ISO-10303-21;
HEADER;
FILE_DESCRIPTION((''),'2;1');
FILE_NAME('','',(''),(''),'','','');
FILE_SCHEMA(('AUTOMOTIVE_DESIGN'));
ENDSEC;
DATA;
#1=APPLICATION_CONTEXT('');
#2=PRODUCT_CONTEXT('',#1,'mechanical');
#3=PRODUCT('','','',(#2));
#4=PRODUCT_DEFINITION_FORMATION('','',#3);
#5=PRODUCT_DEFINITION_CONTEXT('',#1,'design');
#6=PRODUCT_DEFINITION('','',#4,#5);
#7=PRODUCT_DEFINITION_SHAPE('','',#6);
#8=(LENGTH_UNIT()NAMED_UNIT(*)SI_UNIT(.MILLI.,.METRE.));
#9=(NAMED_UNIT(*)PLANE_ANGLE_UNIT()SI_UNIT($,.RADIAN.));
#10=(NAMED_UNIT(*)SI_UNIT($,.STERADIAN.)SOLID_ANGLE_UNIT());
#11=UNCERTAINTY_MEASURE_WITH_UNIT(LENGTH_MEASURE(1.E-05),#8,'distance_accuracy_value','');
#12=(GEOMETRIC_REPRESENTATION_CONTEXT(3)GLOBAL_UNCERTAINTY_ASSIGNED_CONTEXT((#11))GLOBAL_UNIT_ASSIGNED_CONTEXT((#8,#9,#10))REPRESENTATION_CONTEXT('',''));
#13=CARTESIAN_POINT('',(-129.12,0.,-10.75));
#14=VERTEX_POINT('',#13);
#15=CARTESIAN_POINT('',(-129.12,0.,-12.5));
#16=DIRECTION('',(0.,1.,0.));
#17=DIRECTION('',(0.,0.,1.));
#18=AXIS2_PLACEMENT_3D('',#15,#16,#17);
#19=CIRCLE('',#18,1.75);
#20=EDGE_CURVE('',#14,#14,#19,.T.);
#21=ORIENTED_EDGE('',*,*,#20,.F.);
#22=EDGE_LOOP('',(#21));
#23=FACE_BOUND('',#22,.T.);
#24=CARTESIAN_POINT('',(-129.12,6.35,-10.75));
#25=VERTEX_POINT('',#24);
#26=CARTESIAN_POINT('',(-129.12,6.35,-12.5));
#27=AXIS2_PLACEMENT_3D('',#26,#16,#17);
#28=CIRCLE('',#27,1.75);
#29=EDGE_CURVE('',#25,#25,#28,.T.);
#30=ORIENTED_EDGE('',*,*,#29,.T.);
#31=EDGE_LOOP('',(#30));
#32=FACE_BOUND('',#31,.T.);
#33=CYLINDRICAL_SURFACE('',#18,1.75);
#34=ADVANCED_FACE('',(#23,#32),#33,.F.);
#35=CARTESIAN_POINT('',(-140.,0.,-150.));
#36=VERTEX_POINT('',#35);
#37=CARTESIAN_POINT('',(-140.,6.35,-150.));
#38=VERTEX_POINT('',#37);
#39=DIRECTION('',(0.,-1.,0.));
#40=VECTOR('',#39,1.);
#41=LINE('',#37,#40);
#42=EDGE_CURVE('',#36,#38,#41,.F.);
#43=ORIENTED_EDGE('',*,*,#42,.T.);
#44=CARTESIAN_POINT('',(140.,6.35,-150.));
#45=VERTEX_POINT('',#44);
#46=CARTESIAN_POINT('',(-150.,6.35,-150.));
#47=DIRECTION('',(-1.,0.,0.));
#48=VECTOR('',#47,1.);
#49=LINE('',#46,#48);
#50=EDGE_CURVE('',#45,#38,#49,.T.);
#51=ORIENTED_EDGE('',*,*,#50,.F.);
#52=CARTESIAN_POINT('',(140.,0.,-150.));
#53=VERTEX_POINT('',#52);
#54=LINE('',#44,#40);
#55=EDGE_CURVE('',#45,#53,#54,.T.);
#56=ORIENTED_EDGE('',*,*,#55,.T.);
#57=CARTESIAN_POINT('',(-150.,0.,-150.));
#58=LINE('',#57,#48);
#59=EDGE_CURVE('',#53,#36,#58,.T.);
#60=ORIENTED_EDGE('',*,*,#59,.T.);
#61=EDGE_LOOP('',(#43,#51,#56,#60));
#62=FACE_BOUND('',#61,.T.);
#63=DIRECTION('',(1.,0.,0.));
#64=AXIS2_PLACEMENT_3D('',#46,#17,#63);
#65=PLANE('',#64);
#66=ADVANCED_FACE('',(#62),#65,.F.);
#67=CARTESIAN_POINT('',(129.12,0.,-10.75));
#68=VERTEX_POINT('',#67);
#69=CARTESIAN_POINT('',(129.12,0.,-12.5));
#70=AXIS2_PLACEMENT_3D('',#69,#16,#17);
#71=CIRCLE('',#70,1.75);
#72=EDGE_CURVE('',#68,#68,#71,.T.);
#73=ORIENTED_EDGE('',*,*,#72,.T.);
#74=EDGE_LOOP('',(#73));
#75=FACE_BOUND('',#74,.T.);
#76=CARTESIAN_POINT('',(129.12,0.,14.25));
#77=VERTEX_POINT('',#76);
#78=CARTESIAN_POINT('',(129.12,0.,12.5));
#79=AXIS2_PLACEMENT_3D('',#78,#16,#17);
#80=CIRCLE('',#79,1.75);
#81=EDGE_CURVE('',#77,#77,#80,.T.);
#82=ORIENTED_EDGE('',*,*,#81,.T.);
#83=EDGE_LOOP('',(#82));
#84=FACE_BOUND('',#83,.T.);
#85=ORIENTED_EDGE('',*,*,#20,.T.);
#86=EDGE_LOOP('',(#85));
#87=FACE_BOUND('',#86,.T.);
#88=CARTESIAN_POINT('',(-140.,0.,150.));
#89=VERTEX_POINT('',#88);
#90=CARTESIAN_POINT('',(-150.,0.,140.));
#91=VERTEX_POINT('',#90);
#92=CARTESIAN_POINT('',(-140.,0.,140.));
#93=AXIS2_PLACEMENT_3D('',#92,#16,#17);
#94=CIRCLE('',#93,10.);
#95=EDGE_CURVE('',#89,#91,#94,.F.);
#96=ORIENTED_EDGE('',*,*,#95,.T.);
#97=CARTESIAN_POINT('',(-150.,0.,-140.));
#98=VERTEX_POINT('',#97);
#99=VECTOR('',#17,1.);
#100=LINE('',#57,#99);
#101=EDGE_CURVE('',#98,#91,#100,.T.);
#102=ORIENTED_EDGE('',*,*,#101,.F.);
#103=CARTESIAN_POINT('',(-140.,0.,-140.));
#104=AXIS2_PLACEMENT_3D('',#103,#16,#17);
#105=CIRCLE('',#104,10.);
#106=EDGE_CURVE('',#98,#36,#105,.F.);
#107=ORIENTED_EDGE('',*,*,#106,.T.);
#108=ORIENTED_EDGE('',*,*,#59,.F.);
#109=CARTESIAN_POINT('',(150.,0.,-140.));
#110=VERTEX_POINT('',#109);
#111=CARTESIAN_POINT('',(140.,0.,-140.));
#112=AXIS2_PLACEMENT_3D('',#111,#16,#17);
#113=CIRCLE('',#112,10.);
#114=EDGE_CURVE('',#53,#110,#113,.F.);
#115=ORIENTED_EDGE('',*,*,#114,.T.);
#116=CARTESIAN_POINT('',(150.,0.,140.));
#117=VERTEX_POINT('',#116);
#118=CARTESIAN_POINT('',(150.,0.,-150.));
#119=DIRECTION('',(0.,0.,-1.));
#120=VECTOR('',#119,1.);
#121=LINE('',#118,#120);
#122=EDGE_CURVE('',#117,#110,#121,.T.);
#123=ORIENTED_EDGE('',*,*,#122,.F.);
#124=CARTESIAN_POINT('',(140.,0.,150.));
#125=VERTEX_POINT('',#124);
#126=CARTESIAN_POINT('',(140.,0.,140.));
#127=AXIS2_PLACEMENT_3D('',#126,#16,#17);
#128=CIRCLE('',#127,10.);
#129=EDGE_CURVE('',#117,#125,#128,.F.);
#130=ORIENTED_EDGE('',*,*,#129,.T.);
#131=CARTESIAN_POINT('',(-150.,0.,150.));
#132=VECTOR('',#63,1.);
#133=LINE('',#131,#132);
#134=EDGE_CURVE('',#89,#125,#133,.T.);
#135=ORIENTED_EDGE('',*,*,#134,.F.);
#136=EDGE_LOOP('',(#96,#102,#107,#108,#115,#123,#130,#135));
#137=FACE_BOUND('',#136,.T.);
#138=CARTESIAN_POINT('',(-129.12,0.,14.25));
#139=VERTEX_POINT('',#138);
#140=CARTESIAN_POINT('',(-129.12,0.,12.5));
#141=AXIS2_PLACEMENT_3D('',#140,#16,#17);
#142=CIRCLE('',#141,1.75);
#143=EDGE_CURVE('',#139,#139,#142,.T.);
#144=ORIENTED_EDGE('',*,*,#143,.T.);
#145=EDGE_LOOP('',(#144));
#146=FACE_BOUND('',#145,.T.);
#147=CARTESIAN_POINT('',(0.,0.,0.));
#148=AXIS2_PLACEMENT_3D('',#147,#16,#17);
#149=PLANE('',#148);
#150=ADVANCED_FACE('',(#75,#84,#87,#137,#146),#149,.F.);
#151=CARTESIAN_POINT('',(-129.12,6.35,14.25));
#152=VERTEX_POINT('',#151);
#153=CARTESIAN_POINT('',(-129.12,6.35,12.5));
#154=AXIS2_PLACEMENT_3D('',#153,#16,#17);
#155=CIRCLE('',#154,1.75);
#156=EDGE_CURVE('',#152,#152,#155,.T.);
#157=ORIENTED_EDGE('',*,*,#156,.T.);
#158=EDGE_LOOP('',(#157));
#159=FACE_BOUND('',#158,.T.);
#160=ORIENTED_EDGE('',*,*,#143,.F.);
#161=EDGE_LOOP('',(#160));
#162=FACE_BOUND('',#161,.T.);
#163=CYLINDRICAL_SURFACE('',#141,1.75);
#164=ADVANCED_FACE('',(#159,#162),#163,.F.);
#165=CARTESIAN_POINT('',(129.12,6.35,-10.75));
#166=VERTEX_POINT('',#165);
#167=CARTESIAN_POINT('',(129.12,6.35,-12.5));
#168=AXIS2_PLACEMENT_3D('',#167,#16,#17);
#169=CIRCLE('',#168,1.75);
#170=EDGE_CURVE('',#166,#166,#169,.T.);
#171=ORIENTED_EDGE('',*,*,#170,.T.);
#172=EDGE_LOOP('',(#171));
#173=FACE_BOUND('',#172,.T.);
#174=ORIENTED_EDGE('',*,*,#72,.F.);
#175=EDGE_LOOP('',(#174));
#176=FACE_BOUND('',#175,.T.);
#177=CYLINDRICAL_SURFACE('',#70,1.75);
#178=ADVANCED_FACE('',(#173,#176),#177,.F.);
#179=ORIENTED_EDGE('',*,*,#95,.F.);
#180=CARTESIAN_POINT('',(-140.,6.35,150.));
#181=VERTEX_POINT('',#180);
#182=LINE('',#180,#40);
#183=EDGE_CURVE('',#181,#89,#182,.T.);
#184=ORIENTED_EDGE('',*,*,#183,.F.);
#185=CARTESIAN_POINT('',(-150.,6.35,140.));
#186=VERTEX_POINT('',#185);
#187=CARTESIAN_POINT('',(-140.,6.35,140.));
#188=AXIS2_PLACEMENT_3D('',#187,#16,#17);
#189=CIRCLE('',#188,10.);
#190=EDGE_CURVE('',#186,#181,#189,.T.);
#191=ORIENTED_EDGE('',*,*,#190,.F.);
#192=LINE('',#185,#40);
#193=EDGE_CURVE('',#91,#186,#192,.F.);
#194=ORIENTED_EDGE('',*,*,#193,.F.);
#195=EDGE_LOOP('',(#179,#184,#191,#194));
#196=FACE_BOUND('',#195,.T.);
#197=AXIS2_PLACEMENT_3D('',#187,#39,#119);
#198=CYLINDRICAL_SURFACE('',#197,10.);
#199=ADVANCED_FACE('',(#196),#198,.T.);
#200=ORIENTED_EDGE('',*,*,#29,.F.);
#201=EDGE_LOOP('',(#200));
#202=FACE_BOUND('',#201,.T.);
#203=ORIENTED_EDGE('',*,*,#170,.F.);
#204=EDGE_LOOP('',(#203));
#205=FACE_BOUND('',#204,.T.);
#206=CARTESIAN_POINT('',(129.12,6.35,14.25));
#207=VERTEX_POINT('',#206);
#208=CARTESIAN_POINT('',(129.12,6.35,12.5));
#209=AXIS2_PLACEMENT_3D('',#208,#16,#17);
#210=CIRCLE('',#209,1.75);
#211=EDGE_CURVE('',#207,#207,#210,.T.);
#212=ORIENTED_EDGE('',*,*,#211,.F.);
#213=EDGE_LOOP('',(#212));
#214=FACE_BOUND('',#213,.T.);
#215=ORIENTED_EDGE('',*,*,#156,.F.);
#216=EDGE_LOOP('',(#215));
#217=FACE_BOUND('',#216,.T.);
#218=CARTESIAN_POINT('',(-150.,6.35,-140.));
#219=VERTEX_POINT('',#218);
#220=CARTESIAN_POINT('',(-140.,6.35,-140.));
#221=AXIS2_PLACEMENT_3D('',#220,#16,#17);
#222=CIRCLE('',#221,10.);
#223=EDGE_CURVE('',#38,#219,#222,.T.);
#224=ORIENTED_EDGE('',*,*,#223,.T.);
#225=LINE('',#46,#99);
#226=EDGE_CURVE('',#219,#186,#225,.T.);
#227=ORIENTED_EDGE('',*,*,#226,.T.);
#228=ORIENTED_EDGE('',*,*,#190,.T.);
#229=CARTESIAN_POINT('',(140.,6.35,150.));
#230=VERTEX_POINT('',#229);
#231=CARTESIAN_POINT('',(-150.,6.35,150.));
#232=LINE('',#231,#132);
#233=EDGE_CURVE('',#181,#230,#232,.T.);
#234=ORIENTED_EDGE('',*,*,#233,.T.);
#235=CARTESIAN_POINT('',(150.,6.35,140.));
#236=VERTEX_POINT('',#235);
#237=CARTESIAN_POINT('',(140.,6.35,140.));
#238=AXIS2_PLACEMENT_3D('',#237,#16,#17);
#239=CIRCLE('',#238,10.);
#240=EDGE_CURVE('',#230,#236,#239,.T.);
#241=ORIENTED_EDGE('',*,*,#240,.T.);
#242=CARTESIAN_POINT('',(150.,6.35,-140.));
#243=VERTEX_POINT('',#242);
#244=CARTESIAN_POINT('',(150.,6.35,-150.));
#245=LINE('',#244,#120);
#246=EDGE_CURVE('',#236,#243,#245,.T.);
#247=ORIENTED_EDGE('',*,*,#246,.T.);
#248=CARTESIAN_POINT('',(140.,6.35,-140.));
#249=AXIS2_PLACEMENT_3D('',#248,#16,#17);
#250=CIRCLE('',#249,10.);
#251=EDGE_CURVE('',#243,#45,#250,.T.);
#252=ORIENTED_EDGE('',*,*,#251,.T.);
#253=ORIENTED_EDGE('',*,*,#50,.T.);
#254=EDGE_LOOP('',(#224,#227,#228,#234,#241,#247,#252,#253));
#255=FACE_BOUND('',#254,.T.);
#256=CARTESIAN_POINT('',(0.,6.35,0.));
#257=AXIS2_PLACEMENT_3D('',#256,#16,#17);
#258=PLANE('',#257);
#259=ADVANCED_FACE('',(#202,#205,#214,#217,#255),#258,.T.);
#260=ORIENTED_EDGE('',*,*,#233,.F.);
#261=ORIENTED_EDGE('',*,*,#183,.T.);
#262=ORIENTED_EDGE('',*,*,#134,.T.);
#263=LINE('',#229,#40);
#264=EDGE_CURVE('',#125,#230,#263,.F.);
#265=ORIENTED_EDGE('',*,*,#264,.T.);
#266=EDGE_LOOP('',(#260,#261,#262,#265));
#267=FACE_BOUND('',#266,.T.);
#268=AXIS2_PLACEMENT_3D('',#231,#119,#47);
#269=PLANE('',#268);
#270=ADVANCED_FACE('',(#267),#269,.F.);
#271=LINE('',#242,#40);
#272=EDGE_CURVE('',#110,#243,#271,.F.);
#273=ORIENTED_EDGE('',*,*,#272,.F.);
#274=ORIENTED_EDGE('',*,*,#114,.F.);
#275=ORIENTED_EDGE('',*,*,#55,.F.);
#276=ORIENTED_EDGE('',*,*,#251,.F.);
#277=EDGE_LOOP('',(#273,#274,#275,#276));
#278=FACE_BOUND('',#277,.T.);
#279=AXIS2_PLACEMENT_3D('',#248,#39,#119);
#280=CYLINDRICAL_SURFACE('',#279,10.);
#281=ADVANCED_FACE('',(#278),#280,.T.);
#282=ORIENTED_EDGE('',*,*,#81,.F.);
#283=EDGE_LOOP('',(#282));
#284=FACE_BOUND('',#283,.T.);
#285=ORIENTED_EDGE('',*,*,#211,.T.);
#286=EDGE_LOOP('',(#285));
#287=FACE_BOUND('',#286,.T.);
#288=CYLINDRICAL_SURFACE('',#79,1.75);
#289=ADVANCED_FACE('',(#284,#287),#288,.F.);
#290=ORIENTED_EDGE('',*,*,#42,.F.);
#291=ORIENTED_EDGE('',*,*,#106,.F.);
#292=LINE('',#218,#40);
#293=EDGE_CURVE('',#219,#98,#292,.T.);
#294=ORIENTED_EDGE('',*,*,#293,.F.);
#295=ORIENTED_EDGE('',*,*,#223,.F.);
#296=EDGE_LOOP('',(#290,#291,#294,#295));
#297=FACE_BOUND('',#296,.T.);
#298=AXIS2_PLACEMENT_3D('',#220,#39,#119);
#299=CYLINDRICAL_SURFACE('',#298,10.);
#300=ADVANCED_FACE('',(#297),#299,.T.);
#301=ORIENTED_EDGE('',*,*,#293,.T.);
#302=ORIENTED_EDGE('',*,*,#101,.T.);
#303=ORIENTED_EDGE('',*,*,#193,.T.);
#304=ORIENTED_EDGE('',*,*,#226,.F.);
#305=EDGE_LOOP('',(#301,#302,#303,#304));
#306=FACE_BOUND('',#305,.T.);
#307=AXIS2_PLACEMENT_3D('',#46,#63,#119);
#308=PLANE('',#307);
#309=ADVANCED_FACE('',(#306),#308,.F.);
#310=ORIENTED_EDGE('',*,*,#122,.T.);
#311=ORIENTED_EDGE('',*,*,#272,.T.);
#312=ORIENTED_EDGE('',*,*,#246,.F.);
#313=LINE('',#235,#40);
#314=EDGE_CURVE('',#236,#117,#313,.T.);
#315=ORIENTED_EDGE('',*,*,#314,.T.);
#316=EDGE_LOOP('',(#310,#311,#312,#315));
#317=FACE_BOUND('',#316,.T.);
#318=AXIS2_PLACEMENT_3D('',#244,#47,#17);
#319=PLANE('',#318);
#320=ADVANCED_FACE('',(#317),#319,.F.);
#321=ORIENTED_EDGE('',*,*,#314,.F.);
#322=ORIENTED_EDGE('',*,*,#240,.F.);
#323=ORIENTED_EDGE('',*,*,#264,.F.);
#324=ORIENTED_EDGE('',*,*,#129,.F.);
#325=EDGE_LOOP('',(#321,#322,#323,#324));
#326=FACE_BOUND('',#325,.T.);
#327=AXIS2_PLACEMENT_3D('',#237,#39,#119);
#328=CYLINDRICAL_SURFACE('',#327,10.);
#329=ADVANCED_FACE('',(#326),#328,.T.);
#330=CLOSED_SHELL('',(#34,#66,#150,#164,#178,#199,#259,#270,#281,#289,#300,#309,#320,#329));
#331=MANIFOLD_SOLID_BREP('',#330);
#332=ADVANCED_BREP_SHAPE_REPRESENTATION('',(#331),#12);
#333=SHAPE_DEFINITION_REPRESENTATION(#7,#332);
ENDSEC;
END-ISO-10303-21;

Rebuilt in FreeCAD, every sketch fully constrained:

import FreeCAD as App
import Part
import Sketcher

V = App.Vector
Q = App.Units.Quantity


def edges_at(feature, points):
    """Names of the edges that pass closest to the given points."""
    edges = feature.Shape.Edges
    near = lambda p: min(range(len(edges)), key=lambda i: edges[i].distToShape(Part.Vertex(*p))[0])
    return sorted({f"Edge{near(p) + 1}" for p in points})

doc = App.newDocument("Part")
body = doc.addObject("PartDesign::Body", "Body")

sketch1 = body.newObject("Sketcher::SketchObject", "Sketch")
sketch1.AttachmentSupport = (doc.getObject("XZ_Plane"), [""])
sketch1.MapMode = "FlatFace"
sketch1.addGeometry(Part.LineSegment(V(-150, -150, 0), V(-150, 150, 0)), False)
sketch1.addGeometry(Part.LineSegment(V(-150, 150, 0), V(150, 150, 0)), False)
sketch1.addGeometry(Part.LineSegment(V(150, 150, 0), V(150, -150, 0)), False)
sketch1.addGeometry(Part.LineSegment(V(150, -150, 0), V(-150, -150, 0)), False)
sketch1.addConstraint(Sketcher.Constraint("Coincident", 0, 2, 1, 1))
sketch1.addConstraint(Sketcher.Constraint("Coincident", 1, 2, 2, 1))
sketch1.addConstraint(Sketcher.Constraint("Coincident", 2, 2, 3, 1))
sketch1.addConstraint(Sketcher.Constraint("Coincident", 3, 2, 0, 1))
sketch1.addConstraint(Sketcher.Constraint("Vertical", 0))
sketch1.addConstraint(Sketcher.Constraint("Horizontal", 1))
sketch1.addConstraint(Sketcher.Constraint("Vertical", 2))
sketch1.addConstraint(Sketcher.Constraint("Horizontal", 3))
sketch1.addConstraint(Sketcher.Constraint("Symmetric", 0, 2, 2, 2, -1, 1))
sketch1.addConstraint(Sketcher.Constraint("Equal", 3, 0))
sketch1.addConstraint(Sketcher.Constraint("DistanceX", 1, 1, 1, 2, Q("300 mm")))
pad1 = body.newObject("PartDesign::Pad", "Pad")
pad1.Profile = sketch1
pad1.Length = 6.35
pad1.Reversed = True
doc.recompute()

fillet = body.newObject("PartDesign::Fillet", "Fillet")
fillet.Base = (pad1, edges_at(pad1, [
    (150, 3.175, 150),
    (-150, 3.175, 150),
    (-150, 3.175, -150),
    (150, 3.175, -150),
]))
fillet.Radius = 10

sketch2 = body.newObject("Sketcher::SketchObject", "Sketch001")
sketch2.AttachmentSupport = (doc.getObject("XZ_Plane"), [""])
sketch2.MapMode = "FlatFace"
sketch2.AttachmentOffset = App.Placement(V(0, 0, -6.35), App.Rotation())
sketch2.addGeometry(Part.Circle(V(-129.1, -12.5, 0), V(0, 0, 1), 1.8), False)
sketch2.addGeometry(Part.Circle(V(-129.1, 12.5, 0), V(0, 0, 1), 1.8), False)
sketch2.addGeometry(Part.Circle(V(129.1, -12.5, 0), V(0, 0, 1), 1.8), False)
sketch2.addGeometry(Part.Circle(V(129.1, 12.5, 0), V(0, 0, 1), 1.8), False)
sketch2.addConstraint(Sketcher.Constraint("Equal", 0, 1))
sketch2.addConstraint(Sketcher.Constraint("Equal", 1, 2))
sketch2.addConstraint(Sketcher.Constraint("Equal", 2, 3))
sketch2.addConstraint(Sketcher.Constraint("Symmetric", 1, 3, 2, 3, -1, 1))
sketch2.addConstraint(Sketcher.Constraint("Symmetric", 0, 3, 3, 3, -1, 1))
sketch2.addConstraint(Sketcher.Constraint("Symmetric", 0, 3, 2, 3, -2))
sketch2.addConstraint(Sketcher.Constraint("Diameter", 0, Q("3.5 mm")))
sketch2.addConstraint(Sketcher.Constraint("DistanceY", 0, 3, 1, 3, Q("25 mm")))
sketch2.addConstraint(Sketcher.Constraint("DistanceX", 0, 3, -1, 1, Q("129.12 mm")))
pocket1 = body.newObject("PartDesign::Pocket", "Pocket")
pocket1.Profile = sketch2
pocket1.Type = "ThroughAll"
pocket1.Reversed = True

doc.recompute()
